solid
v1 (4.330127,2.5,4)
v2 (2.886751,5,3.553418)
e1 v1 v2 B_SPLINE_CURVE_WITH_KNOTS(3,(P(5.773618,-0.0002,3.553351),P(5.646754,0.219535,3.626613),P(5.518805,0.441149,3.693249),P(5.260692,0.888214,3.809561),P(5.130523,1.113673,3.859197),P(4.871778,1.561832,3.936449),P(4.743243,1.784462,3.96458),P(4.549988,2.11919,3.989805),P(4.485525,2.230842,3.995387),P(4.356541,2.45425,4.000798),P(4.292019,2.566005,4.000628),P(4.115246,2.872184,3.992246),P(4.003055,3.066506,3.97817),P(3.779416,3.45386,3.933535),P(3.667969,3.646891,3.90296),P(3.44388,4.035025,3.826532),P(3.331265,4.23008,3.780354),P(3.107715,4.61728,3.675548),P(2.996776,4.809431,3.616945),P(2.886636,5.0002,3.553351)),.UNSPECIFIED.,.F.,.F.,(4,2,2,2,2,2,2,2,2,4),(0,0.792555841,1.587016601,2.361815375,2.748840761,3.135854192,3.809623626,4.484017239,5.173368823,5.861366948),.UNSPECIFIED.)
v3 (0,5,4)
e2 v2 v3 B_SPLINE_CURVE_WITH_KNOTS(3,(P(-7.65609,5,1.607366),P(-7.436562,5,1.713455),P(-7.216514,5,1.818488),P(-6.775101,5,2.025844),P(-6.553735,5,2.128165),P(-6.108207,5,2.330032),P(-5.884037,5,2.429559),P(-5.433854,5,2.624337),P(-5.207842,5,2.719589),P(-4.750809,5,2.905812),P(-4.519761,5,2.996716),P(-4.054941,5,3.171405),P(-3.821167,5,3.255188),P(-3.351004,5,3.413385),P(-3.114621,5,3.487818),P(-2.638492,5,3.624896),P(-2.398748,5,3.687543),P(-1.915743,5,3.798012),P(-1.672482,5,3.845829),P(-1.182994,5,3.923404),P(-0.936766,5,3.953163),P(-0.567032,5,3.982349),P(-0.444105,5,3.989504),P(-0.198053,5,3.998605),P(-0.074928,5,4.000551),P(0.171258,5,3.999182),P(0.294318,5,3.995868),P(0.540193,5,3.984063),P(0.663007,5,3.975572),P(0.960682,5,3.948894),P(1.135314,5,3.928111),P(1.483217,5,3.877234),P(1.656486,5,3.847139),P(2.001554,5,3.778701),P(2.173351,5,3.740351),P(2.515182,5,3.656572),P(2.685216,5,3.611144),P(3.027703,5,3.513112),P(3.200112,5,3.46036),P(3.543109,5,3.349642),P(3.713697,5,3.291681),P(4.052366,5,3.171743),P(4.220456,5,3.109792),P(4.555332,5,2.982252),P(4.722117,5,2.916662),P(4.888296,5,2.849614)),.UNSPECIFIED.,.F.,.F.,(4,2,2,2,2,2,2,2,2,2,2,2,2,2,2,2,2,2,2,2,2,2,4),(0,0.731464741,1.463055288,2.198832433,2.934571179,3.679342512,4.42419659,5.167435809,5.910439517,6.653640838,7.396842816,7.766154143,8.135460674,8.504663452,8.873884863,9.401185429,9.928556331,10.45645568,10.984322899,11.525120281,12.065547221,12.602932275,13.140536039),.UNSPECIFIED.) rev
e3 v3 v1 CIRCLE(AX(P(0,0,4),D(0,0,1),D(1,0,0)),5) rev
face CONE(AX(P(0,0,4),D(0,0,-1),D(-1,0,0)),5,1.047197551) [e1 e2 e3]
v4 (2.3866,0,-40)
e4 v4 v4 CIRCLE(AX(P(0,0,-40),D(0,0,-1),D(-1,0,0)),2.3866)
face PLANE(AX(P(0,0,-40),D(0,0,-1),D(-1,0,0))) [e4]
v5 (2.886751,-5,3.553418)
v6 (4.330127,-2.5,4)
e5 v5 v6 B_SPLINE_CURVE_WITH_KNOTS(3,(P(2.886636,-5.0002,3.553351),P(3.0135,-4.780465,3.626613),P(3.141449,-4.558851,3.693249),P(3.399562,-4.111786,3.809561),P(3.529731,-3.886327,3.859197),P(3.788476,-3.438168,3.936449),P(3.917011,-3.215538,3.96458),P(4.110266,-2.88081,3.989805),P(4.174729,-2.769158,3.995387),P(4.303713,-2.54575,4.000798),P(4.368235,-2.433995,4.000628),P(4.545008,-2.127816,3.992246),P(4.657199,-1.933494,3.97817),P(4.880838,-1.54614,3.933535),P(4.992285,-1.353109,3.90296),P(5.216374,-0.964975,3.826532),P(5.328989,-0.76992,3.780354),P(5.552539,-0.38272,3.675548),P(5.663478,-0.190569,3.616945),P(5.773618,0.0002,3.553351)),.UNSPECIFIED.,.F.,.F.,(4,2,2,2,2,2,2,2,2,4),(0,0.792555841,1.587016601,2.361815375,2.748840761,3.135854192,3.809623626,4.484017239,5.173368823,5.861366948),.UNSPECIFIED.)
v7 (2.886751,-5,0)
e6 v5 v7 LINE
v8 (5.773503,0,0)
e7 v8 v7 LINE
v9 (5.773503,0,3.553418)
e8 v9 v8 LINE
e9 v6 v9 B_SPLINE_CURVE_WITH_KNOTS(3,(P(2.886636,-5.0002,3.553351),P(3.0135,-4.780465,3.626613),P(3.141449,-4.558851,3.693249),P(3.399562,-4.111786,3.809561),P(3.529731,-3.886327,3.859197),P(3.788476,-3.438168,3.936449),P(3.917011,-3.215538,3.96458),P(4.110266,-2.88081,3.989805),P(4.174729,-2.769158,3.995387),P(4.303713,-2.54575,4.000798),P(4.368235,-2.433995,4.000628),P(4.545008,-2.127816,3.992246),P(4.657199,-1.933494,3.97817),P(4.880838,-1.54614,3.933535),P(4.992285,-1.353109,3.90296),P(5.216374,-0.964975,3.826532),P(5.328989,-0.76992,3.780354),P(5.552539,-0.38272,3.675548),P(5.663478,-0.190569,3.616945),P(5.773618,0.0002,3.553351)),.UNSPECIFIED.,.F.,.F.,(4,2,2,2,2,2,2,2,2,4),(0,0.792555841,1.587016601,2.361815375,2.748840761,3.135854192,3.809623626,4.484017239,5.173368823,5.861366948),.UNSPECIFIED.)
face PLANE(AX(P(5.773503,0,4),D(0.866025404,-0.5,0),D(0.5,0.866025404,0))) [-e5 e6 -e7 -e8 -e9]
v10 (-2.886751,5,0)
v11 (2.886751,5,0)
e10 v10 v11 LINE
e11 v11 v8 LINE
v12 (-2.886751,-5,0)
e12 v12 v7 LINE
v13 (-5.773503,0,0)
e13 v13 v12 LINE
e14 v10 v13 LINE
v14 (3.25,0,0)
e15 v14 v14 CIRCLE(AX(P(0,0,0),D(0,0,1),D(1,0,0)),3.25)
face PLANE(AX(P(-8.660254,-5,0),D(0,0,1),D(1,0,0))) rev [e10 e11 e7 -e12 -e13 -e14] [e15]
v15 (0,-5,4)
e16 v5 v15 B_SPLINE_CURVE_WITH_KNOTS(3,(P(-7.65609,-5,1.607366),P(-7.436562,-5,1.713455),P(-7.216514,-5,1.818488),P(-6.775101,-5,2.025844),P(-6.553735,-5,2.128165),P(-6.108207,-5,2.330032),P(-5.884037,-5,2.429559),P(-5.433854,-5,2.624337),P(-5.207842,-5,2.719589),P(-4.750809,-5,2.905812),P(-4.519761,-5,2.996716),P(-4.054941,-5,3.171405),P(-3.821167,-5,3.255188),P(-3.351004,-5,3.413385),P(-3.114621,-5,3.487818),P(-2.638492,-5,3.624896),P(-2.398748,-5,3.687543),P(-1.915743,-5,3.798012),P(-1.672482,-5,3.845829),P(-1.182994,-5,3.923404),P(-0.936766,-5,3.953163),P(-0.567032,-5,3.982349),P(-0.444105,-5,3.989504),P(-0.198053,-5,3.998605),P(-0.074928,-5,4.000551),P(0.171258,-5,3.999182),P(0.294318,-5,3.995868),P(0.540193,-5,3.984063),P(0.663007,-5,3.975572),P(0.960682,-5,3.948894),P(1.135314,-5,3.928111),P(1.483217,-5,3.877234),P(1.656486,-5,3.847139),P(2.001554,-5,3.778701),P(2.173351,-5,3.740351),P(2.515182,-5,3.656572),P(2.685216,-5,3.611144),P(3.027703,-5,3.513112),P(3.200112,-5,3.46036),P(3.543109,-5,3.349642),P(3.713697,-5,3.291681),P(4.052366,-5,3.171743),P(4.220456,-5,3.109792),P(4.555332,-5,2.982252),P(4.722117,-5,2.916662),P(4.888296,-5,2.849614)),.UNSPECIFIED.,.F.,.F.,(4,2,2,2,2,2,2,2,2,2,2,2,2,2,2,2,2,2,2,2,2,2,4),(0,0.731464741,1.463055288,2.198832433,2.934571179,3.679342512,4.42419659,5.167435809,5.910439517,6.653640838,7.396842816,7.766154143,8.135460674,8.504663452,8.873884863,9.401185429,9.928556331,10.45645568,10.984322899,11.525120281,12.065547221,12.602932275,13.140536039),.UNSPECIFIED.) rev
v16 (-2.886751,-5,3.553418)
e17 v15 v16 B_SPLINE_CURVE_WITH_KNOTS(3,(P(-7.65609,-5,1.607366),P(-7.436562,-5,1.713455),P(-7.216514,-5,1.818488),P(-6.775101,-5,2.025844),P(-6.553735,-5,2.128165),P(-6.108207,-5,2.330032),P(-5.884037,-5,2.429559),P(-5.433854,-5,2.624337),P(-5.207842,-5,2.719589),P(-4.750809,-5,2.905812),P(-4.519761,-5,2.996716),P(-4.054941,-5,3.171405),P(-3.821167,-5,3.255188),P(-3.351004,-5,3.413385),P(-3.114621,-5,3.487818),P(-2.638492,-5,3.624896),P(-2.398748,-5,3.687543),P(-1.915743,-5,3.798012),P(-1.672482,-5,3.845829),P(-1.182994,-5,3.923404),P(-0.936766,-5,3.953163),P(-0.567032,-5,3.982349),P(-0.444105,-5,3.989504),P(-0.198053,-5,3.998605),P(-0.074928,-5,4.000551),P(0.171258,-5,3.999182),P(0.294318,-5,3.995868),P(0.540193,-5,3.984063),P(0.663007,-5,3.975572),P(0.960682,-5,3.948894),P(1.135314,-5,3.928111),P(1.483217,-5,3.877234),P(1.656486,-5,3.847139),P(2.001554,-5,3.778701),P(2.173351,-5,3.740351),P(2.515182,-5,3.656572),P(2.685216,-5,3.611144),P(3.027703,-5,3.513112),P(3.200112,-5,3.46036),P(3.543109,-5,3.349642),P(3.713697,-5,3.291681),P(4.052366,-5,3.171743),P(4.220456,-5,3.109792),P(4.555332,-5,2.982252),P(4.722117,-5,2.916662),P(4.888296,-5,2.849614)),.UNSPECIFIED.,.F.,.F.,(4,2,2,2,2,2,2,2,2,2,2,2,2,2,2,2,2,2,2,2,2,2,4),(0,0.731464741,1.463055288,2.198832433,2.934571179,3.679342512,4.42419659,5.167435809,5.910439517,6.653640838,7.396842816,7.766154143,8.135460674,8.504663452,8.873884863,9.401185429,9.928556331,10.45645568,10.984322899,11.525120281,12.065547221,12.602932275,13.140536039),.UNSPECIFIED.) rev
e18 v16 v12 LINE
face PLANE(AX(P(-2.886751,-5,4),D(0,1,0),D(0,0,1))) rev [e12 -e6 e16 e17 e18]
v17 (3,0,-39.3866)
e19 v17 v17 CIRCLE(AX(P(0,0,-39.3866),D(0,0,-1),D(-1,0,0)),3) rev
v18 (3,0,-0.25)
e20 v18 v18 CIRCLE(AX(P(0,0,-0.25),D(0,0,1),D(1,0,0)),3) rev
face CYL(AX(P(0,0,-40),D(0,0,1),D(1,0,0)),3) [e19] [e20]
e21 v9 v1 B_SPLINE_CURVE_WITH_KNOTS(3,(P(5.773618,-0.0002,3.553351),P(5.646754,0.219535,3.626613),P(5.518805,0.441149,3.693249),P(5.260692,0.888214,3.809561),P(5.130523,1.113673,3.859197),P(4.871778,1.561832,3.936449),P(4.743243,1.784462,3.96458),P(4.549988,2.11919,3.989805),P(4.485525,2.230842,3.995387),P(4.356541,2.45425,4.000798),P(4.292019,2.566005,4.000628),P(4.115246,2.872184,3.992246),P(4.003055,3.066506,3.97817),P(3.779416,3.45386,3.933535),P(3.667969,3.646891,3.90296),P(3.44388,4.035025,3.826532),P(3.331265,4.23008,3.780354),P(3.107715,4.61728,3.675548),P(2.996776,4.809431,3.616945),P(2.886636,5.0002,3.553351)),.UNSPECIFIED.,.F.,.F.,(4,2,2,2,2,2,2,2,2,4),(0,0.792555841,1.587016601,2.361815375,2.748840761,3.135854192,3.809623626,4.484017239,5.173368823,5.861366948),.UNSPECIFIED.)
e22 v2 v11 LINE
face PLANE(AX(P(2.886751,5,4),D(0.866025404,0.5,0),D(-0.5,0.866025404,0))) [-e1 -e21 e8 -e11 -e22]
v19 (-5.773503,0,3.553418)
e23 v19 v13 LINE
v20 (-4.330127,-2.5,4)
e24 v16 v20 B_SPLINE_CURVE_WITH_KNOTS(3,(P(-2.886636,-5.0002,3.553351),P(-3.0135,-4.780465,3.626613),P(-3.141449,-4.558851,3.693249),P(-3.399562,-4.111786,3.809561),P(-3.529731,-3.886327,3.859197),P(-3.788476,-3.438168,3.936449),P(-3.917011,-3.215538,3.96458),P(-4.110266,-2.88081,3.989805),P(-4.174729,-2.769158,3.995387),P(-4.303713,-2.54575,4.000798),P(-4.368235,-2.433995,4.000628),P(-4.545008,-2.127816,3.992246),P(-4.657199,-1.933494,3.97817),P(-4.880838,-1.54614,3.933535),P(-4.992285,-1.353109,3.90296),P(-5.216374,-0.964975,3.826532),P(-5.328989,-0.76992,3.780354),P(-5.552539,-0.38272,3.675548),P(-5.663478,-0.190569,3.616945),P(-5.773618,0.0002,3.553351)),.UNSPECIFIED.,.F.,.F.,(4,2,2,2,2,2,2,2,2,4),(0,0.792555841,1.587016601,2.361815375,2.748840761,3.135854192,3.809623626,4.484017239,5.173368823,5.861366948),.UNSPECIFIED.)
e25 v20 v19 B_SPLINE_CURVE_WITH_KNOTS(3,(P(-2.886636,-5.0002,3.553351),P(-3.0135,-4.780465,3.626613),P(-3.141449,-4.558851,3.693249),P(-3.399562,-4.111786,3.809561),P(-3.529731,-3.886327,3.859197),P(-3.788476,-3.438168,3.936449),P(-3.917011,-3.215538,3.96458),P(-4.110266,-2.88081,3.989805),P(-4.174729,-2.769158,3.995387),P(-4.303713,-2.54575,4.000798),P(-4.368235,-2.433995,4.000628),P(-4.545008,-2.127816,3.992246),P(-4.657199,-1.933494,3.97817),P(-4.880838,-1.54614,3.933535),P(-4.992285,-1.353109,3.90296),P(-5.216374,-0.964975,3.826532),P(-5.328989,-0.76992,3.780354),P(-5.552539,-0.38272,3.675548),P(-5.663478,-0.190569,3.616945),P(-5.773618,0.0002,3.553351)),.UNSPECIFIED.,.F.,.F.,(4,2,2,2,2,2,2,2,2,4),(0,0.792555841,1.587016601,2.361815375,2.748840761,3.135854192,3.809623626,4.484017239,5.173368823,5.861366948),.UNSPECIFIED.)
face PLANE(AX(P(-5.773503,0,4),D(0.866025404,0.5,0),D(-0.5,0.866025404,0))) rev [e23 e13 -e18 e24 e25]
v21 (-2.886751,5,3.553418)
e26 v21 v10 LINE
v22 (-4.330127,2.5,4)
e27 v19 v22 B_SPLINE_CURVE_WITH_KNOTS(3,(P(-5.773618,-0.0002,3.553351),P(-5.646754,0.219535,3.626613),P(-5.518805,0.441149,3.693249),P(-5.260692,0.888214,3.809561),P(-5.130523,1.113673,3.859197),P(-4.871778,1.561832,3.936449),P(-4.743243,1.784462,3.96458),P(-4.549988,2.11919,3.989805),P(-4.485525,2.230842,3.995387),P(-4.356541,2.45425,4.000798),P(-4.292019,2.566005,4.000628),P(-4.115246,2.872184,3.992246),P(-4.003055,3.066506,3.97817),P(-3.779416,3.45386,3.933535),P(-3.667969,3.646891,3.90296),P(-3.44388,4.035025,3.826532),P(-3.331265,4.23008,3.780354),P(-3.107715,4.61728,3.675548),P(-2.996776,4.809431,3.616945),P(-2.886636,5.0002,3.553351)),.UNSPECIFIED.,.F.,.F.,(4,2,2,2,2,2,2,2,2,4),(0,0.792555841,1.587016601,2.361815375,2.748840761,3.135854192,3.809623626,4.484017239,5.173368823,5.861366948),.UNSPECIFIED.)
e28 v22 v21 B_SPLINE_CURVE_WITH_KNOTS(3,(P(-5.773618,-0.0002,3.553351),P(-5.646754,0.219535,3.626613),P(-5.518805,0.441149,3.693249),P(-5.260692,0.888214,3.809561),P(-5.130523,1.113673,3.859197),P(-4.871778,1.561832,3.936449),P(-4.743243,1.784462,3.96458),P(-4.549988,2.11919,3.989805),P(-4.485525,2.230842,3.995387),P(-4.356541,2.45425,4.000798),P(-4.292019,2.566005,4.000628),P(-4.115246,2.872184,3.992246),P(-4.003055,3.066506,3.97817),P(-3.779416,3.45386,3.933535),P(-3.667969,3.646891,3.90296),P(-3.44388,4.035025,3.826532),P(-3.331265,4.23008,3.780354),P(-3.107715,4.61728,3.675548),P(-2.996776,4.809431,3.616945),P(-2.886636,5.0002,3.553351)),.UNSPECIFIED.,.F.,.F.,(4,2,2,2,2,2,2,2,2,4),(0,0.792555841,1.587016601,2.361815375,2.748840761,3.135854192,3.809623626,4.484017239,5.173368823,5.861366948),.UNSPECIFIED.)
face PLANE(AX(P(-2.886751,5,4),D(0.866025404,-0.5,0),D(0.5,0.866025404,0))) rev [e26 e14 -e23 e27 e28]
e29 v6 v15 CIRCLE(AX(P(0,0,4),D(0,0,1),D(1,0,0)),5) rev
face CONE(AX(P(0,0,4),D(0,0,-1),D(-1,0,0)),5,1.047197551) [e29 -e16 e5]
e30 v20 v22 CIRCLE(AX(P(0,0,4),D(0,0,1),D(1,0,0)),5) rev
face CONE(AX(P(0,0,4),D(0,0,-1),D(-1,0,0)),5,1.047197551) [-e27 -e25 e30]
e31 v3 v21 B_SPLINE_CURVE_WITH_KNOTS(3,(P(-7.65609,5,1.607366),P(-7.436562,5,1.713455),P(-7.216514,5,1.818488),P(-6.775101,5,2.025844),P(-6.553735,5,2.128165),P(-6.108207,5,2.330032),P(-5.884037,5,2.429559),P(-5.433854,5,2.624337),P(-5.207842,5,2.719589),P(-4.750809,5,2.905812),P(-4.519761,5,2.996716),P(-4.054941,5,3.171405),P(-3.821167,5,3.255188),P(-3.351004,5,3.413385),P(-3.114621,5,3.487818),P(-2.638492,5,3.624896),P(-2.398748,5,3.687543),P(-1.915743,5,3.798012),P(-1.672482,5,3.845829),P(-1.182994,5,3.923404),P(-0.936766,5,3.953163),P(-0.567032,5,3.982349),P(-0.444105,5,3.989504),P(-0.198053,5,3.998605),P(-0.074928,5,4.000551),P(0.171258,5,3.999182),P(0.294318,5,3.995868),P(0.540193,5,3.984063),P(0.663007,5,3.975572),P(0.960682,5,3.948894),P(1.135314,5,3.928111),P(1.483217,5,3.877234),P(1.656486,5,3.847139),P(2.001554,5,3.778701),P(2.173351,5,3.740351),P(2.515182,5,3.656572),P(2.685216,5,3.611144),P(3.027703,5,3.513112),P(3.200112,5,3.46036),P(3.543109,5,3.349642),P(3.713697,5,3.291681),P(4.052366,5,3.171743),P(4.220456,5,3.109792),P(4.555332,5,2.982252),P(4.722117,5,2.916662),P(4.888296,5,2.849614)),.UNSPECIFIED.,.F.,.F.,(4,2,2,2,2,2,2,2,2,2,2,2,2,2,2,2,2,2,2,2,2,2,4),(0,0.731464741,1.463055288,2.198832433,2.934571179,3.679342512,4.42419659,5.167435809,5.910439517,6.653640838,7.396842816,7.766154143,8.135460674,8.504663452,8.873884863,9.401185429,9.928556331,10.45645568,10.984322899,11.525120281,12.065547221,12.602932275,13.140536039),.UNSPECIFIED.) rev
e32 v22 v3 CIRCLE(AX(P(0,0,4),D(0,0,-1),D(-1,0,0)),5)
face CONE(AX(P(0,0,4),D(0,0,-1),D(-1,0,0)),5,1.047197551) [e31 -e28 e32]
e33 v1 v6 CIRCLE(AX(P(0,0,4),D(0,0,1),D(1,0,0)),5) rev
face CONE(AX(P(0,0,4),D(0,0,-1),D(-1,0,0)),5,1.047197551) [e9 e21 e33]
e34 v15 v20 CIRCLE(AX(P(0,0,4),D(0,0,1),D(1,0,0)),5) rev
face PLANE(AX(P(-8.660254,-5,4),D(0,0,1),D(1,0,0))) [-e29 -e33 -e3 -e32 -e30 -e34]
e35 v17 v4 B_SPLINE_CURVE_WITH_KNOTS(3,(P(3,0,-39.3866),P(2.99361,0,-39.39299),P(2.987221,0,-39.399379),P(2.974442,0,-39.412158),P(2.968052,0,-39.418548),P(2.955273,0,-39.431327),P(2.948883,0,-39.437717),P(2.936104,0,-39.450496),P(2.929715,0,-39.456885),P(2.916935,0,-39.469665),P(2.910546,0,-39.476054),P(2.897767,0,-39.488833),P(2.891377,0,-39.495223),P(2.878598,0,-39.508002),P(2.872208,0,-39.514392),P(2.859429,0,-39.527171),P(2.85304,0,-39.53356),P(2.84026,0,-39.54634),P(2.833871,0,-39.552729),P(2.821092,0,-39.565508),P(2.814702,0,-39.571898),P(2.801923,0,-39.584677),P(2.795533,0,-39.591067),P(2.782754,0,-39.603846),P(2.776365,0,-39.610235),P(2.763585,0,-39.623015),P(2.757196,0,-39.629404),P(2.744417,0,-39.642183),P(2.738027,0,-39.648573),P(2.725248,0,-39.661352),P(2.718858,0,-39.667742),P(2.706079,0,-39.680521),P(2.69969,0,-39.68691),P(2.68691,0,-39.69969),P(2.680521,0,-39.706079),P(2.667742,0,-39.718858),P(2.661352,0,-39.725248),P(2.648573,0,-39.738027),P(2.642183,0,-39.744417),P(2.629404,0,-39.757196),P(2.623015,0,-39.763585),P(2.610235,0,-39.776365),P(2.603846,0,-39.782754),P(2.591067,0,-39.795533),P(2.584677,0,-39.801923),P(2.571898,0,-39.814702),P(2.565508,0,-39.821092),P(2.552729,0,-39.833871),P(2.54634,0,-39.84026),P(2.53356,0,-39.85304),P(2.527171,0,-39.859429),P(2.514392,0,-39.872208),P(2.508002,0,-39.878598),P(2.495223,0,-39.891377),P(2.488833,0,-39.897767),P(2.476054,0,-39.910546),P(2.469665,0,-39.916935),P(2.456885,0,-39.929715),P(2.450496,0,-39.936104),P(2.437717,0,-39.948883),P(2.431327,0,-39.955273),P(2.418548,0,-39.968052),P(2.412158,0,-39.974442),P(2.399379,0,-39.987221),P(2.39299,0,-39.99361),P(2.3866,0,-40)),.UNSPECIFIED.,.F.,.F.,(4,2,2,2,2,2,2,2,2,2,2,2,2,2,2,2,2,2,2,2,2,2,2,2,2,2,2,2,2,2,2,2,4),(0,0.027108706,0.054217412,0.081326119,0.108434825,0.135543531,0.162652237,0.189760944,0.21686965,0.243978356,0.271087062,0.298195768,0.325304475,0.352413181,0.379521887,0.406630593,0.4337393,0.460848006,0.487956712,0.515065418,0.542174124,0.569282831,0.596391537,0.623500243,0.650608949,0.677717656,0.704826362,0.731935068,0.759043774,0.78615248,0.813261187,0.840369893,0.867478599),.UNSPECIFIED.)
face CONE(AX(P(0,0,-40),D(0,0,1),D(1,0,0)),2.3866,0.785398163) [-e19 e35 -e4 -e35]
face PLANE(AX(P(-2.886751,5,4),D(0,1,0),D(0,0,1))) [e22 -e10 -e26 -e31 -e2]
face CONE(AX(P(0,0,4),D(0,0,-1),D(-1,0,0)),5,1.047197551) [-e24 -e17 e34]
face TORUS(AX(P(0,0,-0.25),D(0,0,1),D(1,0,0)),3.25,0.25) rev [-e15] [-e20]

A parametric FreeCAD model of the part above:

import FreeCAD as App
import Part
import Sketcher
Q = App.Units.Quantity


def edges_at(feature, points):
    """Names of the edges that pass closest to the given points."""
    edges = feature.Shape.Edges
    near = lambda p: min(range(len(edges)), key=lambda i: edges[i].distToShape(Part.Vertex(*p))[0])
    return sorted({f"Edge{near(p) + 1}" for p in points})

doc = App.newDocument("Part")
params = doc.addObject("Spreadsheet::Sheet", "Params")
for row, (alias, value) in enumerate([
    ("pad1_length", "4 mm"),
    ("groove_angle", "360 deg"),
    ("sketch3_diameter", "6 mm"),
    ("pad2_length", "40 mm"),
    ("chamfer_size", "0.6134 mm"),
    ("fillet_radius", "0.25 mm"),
], start=1):
    params.set(f"A{row}", alias)
    params.set(f"B{row}", "=" + value)
    params.setAlias(f"B{row}", alias)

body = doc.addObject("PartDesign::Body", "Body")

sketch1 = body.newObject("Sketcher::SketchObject", "Sketch")
sketch1.AttachmentSupport = (doc.getObject("XY_Plane"), [""])
sketch1.MapMode = "FlatFace"
sketch1.addGeometry([
    Part.LineSegment(App.Vector(3, 5, 0), App.Vector(-3, 5, 0)),
    Part.LineSegment(App.Vector(-3, 5, 0), App.Vector(-6, 0, 0)),
    Part.LineSegment(App.Vector(-6, 0, 0), App.Vector(-3, -5, 0)),
    Part.LineSegment(App.Vector(-3, -5, 0), App.Vector(3, -5, 0)),
    Part.LineSegment(App.Vector(3, -5, 0), App.Vector(6, 0, 0)),
    Part.LineSegment(App.Vector(6, 0, 0), App.Vector(3, 5, 0)),
], False)
sketch1.addConstraint([
    Sketcher.Constraint("Coincident", 0, 2, 1, 1),
    Sketcher.Constraint("Coincident", 1, 2, 2, 1),
    Sketcher.Constraint("Coincident", 2, 2, 3, 1),
    Sketcher.Constraint("Coincident", 3, 2, 4, 1),
    Sketcher.Constraint("Coincident", 4, 2, 5, 1),
    Sketcher.Constraint("Coincident", 5, 2, 0, 1),
    Sketcher.Constraint("Horizontal", 0),
    Sketcher.Constraint("Horizontal", 3),
    Sketcher.Constraint("Symmetric", 0, 2, 3, 2, -1, 1),
    Sketcher.Constraint("Symmetric", 1, 2, 4, 2, -1, 1),
    Sketcher.Constraint("PointOnObject", 1, 2, -1),
    Sketcher.Constraint("Parallel", 2, 5),
    Sketcher.Constraint("Vertical", 0, 2, 2, 2),
    Sketcher.Constraint("Angle", 1, Q("-120 deg")),
    Sketcher.Constraint("DistanceY", -1, 1, 0, 2, Q("5 mm")),
    Sketcher.Constraint("DistanceX", 0, 2, 0, 1, Q("5.773503 mm")),
])
pad1 = body.newObject("PartDesign::Pad", "Pad")
pad1.Profile = sketch1
pad1.setExpression("Length", "Params.pad1_length")

sketch2 = body.newObject("Sketcher::SketchObject", "Sketch001")
sketch2.AttachmentSupport = (doc.getObject("XZ_Plane"), [""])
sketch2.MapMode = "FlatFace"
sketch2.addGeometry([
    Part.LineSegment(App.Vector(-5.77, 4, 0), App.Vector(-5, 4, 0)),
    Part.LineSegment(App.Vector(-5, 4, 0), App.Vector(-5.77, 3.55, 0)),
    Part.LineSegment(App.Vector(-5.77, 3.55, 0), App.Vector(-5.77, 4, 0)),
], False)
sketch2.addConstraint([
    Sketcher.Constraint("Coincident", 0, 2, 1, 1),
    Sketcher.Constraint("Coincident", 1, 2, 2, 1),
    Sketcher.Constraint("Coincident", 2, 2, 0, 1),
    Sketcher.Constraint("Horizontal", 0),
    Sketcher.Constraint("Vertical", 2),
    Sketcher.Constraint("Angle", 1, Q("-150 deg")),
    Sketcher.Constraint("DistanceX", 0, 2, -1, 1, Q("5 mm")),
    Sketcher.Constraint("DistanceY", -1, 1, 0, 2, Q("4 mm")),
    Sketcher.Constraint("DistanceY", 2, 1, 2, 2, Q("0.446582 mm")),
])
groove = body.newObject("PartDesign::Groove", "Groove")
groove.Profile = sketch2
groove.ReferenceAxis = (sketch2, ["V_Axis"])
groove.setExpression("Angle", "Params.groove_angle")

sketch3 = body.newObject("Sketcher::SketchObject", "Sketch002")
sketch3.AttachmentSupport = (doc.getObject("XY_Plane"), [""])
sketch3.MapMode = "FlatFace"
sketch3.addGeometry(Part.Circle(App.Vector(0, 0, 0), App.Vector(0, 0, 1), 3), False)
sketch3.addConstraint([
    Sketcher.Constraint("Coincident", 0, 3, -1, 1),
    Sketcher.Constraint("Diameter", 0, Q("6 mm")),
])
sketch3.setExpression("Constraints[1]", "Params.sketch3_diameter")
pad2 = body.newObject("PartDesign::Pad", "Pad001")
pad2.Profile = sketch3
pad2.setExpression("Length", "Params.pad2_length")
pad2.Reversed = True
doc.recompute()

chamfer = body.newObject("PartDesign::Chamfer", "Chamfer")
chamfer.Base = (pad2, edges_at(pad2, [(-3, 0, -40)]))
chamfer.setExpression("Size", "Params.chamfer_size")
doc.recompute()

fillet = body.newObject("PartDesign::Fillet", "Fillet")
fillet.Base = (chamfer, edges_at(chamfer, [(-3, 0, 0)]))
fillet.setExpression("Radius", "Params.fillet_radius")

doc.recompute()
